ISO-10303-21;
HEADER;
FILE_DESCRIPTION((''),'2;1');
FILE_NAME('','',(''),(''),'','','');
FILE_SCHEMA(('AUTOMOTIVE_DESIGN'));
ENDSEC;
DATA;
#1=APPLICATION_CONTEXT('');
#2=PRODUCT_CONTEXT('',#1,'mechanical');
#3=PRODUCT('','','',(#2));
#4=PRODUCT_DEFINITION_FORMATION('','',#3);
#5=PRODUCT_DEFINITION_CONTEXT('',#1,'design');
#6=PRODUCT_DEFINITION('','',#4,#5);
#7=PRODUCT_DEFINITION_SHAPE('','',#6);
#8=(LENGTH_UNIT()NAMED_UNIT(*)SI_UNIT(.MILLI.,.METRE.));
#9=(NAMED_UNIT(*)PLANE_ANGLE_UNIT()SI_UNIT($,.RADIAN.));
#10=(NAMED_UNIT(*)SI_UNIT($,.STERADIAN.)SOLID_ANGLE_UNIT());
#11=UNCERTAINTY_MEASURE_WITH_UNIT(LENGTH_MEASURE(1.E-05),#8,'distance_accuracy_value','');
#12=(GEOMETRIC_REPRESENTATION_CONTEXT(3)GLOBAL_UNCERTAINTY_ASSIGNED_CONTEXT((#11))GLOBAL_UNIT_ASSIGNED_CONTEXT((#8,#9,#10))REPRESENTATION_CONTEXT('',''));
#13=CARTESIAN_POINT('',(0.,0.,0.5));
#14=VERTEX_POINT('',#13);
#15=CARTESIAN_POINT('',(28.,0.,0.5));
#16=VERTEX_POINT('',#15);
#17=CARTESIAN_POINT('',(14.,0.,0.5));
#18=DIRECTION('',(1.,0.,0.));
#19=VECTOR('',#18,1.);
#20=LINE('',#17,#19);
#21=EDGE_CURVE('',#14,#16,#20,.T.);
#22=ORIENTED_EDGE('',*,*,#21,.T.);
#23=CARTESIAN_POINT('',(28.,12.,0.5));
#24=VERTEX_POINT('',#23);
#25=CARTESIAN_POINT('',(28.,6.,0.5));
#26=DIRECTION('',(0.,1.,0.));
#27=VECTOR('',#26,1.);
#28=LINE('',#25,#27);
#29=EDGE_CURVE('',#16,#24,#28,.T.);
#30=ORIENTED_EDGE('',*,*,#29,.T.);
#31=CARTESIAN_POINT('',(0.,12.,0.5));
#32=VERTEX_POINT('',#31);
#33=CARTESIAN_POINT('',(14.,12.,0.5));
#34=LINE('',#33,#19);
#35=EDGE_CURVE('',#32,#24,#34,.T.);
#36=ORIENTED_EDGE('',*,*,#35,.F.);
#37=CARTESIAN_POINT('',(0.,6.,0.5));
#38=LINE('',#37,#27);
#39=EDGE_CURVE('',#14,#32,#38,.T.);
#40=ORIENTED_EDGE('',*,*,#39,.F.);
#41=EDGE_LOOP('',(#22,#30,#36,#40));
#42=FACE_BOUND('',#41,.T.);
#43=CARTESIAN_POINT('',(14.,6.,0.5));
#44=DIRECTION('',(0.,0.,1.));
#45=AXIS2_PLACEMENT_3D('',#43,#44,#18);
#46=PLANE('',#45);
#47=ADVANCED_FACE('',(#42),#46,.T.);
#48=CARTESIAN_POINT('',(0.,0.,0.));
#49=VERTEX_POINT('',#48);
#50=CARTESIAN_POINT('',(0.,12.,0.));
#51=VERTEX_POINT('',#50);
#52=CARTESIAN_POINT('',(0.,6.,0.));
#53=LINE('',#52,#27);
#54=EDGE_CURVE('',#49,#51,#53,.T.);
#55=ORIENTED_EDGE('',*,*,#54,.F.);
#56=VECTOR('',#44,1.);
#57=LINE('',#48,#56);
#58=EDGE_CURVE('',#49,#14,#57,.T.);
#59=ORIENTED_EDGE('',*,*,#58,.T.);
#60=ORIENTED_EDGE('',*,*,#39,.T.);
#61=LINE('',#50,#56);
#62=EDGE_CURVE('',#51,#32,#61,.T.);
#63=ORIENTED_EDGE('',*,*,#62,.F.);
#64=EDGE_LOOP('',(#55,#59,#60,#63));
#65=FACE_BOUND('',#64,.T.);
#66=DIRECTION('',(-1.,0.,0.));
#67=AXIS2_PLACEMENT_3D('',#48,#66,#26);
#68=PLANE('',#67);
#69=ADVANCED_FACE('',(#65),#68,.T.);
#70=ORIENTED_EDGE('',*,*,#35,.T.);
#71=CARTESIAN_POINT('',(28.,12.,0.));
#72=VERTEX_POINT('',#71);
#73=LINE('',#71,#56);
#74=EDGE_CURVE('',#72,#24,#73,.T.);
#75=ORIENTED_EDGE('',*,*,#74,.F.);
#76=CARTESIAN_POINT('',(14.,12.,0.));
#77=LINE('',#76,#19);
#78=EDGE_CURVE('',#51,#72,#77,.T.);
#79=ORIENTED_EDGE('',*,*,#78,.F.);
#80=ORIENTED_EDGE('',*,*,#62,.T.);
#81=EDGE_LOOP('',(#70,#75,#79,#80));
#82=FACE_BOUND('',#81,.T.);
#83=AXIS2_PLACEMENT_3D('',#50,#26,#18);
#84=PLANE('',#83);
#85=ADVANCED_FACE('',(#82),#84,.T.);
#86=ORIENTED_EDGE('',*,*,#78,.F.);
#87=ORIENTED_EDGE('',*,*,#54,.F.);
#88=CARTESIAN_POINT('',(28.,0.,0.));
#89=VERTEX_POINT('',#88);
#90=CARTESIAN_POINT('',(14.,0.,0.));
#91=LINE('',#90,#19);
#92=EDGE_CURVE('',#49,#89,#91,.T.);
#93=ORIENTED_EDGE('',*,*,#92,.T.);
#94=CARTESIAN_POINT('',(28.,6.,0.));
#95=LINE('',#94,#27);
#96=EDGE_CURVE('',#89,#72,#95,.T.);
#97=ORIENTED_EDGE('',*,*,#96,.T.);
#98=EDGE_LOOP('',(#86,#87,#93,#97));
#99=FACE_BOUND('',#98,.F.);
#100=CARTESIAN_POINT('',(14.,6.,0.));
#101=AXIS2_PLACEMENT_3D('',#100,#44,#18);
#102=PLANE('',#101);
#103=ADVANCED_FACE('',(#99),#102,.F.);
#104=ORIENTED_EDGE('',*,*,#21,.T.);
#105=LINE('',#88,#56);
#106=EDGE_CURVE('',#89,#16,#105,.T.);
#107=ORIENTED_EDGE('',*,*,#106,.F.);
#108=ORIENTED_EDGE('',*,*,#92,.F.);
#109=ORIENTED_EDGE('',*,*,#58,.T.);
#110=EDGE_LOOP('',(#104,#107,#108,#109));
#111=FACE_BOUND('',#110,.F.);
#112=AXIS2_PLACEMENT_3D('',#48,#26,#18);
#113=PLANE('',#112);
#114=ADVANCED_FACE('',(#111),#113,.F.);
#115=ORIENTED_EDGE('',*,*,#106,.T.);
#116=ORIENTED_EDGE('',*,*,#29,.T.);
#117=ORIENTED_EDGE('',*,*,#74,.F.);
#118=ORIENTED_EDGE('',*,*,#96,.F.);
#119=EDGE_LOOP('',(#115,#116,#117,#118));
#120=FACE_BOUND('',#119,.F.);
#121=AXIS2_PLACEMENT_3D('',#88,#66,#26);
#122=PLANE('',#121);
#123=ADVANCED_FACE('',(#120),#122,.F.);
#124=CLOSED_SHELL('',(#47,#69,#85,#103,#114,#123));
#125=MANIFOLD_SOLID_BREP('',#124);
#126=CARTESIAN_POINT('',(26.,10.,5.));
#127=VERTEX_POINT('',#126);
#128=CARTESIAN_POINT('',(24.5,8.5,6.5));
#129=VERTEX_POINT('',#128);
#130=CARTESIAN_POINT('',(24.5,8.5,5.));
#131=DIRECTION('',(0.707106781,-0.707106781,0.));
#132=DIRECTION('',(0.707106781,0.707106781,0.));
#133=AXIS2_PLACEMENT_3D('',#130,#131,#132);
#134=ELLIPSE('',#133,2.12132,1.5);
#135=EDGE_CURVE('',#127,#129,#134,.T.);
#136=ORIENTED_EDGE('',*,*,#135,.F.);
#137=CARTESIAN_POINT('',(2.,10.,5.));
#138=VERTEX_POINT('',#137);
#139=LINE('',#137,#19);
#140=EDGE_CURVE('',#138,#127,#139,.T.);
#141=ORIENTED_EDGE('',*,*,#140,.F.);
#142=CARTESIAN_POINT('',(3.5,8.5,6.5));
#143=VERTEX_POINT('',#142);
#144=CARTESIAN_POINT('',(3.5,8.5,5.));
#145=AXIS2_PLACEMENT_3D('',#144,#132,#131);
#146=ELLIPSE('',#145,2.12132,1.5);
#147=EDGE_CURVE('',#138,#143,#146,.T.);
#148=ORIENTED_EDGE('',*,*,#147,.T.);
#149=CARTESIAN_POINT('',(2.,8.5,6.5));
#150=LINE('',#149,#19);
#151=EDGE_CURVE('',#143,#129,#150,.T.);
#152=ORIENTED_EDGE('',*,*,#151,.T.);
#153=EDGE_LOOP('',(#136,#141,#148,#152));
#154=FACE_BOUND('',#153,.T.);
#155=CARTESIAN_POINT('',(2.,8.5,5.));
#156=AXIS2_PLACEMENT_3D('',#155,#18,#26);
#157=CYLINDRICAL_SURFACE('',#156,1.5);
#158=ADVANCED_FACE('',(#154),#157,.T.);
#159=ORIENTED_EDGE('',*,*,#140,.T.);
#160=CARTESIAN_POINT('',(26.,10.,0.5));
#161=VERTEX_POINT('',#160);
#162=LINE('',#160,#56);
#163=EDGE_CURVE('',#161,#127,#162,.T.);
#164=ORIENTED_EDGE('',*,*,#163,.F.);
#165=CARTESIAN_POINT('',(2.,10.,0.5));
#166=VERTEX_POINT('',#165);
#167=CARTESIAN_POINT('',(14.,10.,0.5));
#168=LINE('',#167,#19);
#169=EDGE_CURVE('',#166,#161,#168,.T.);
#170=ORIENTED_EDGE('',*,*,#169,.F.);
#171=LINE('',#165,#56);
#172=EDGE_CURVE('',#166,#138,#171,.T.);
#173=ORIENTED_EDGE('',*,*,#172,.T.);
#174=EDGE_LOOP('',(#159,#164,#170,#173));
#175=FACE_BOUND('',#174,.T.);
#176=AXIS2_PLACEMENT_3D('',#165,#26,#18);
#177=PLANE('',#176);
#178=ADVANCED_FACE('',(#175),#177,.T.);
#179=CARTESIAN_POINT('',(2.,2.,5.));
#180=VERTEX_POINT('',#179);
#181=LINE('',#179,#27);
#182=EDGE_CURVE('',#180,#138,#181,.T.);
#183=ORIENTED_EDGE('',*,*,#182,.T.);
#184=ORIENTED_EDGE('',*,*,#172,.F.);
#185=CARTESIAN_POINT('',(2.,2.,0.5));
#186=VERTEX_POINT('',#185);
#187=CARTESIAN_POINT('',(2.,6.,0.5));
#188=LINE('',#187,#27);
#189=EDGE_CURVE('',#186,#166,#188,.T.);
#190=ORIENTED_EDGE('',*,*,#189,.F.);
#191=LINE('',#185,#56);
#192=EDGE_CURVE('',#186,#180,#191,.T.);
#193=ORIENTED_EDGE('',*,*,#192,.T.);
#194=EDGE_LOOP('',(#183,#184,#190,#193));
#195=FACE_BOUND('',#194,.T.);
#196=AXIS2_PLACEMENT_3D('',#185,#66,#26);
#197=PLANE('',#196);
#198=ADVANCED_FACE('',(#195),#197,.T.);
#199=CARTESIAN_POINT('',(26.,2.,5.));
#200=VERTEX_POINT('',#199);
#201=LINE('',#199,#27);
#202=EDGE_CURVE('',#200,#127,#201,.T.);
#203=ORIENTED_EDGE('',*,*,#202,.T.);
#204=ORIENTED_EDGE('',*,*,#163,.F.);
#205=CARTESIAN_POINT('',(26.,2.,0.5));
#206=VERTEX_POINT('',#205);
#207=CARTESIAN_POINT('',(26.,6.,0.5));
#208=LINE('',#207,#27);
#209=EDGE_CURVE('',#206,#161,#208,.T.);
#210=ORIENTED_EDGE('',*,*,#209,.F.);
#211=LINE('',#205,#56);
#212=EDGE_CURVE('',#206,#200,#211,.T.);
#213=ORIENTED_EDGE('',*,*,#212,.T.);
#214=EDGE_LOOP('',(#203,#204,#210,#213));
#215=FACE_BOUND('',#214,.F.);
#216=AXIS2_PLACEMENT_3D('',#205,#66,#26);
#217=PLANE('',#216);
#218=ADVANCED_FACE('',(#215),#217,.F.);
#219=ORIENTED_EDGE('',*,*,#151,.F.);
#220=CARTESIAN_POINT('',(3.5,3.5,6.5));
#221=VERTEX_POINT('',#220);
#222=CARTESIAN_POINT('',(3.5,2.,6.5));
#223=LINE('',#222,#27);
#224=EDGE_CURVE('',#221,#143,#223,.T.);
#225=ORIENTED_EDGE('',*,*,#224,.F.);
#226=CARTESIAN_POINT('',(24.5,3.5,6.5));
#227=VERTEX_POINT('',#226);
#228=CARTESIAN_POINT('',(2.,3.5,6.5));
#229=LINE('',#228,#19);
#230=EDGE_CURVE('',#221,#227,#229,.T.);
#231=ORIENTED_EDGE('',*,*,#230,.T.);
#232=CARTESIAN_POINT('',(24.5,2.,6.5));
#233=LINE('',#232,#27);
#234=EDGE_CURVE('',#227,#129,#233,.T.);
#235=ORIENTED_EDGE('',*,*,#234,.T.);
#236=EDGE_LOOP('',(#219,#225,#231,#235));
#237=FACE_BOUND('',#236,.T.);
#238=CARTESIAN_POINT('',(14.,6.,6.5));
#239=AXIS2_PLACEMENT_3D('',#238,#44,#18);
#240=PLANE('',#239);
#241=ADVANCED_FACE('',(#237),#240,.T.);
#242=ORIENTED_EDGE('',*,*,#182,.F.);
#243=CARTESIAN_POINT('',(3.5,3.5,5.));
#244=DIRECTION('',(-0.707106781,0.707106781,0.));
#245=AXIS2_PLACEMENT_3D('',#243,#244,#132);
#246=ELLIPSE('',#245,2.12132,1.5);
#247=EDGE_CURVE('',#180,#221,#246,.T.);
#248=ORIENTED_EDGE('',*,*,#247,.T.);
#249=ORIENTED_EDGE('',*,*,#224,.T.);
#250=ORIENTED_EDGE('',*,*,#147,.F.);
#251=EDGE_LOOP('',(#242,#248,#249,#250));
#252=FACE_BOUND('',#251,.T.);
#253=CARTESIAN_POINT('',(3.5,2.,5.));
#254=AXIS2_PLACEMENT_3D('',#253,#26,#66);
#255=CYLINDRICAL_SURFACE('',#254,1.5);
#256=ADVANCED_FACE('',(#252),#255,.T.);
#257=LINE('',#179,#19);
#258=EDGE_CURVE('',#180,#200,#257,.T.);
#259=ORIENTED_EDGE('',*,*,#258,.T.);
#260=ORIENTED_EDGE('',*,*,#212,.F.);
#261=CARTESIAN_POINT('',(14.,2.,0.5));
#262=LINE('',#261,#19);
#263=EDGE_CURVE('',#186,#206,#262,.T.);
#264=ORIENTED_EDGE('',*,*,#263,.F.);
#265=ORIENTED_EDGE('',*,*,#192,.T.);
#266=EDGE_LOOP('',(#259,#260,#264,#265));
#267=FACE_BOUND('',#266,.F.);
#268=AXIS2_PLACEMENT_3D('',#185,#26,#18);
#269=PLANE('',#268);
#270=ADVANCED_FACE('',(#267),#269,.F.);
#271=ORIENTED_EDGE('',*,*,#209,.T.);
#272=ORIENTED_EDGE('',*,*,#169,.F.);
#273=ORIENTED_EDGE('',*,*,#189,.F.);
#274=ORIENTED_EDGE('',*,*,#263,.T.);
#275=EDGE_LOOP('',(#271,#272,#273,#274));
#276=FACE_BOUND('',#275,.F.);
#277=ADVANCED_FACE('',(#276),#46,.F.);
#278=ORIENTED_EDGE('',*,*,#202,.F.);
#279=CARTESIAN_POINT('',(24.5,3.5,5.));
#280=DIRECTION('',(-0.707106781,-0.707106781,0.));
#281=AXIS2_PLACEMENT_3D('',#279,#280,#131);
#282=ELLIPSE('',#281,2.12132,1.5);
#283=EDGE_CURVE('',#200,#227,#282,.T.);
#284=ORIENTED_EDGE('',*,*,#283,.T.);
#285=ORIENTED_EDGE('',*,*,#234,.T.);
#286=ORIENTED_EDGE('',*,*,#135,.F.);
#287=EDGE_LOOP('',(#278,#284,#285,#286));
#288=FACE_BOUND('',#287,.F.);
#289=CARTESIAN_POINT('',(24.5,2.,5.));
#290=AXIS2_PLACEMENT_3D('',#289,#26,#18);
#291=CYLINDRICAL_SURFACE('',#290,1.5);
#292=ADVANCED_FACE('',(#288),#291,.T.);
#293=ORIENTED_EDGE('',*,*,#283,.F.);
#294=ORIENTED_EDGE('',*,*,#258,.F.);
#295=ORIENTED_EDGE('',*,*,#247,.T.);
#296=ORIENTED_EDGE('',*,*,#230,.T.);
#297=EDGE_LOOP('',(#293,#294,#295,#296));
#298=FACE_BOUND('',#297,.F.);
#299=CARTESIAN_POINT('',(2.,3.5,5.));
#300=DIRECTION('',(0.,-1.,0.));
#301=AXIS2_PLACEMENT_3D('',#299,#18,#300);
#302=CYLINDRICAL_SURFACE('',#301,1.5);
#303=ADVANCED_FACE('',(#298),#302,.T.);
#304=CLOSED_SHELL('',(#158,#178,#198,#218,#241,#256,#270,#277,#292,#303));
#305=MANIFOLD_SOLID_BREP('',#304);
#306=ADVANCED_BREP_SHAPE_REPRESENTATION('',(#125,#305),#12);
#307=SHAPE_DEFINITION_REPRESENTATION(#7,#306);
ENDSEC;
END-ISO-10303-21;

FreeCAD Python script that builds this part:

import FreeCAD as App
import Part
import Sketcher


def edges_at(feature, points):
    """Names of the edges that pass closest to the given points."""
    edges = feature.Shape.Edges
    near = lambda p: min(range(len(edges)), key=lambda i: edges[i].distToShape(Part.Vertex(*p))[0])
    return sorted({f"Edge{near(p) + 1}" for p in points})

doc = App.newDocument("Part")
body = doc.addObject("PartDesign::Body", "Body")

sketch1 = doc.addObject("Sketcher::SketchObject", "Sketch")
body.addObject(sketch1)
sketch1.AttachmentSupport = (doc.XY_Plane, [""])
sketch1.MapMode = "FlatFace"
sketch1.addGeometry([
    Part.LineSegment(App.Vector(0, 12, 0), App.Vector(0, 0, 0)),
    Part.LineSegment(App.Vector(0, 0, 0), App.Vector(28, 0, 0)),
    Part.LineSegment(App.Vector(28, 0, 0), App.Vector(28, 12, 0)),
    Part.LineSegment(App.Vector(28, 12, 0), App.Vector(0, 12, 0)),
], False)
sketch1.addConstraint([
    Sketcher.Constraint("Coincident", 0, 2, 1, 1),
    Sketcher.Constraint("Coincident", 1, 2, 2, 1),
    Sketcher.Constraint("Coincident", 2, 2, 3, 1),
    Sketcher.Constraint("Coincident", 3, 2, 0, 1),
    Sketcher.Constraint("Vertical", 0),
    Sketcher.Constraint("Horizontal", 1),
    Sketcher.Constraint("Vertical", 2),
    Sketcher.Constraint("Horizontal", 3),
    Sketcher.Constraint("Coincident", 0, 2, -1, 1),
    Sketcher.Constraint("DistanceX", 1, 1, 1, 2, 28.0),
    Sketcher.Constraint("DistanceY", 0, 2, 0, 1, 12.0),
])
pad1 = doc.addObject("PartDesign::Pad", "Pad")
body.addObject(pad1)
pad1.Profile = sketch1
pad1.Length = 0.5
body2 = doc.addObject("PartDesign::Body", "Body001")

sketch2 = doc.addObject("Sketcher::SketchObject", "Sketch001")
body2.addObject(sketch2)
sketch2.AttachmentSupport = (doc.getObject("XY_Plane001"), [""])
sketch2.MapMode = "FlatFace"
sketch2.AttachmentOffset = App.Placement(App.Vector(0, 0, 0.5), App.Rotation())
sketch2.addGeometry([
    Part.LineSegment(App.Vector(2, 10, 0), App.Vector(2, 2, 0)),
    Part.LineSegment(App.Vector(2, 2, 0), App.Vector(26, 2, 0)),
    Part.LineSegment(App.Vector(26, 2, 0), App.Vector(26, 10, 0)),
    Part.LineSegment(App.Vector(26, 10, 0), App.Vector(2, 10, 0)),
], False)
sketch2.addConstraint([
    Sketcher.Constraint("Coincident", 0, 2, 1, 1),
    Sketcher.Constraint("Coincident", 1, 2, 2, 1),
    Sketcher.Constraint("Coincident", 2, 2, 3, 1),
    Sketcher.Constraint("Coincident", 3, 2, 0, 1),
    Sketcher.Constraint("Vertical", 0),
    Sketcher.Constraint("Horizontal", 1),
    Sketcher.Constraint("Vertical", 2),
    Sketcher.Constraint("Horizontal", 3),
    Sketcher.Constraint("DistanceX", 1, 1, 1, 2, 24.0),
    Sketcher.Constraint("DistanceY", 0, 2, 0, 1, 8.0),
    Sketcher.Constraint("DistanceX", -1, 1, 0, 2, 2.0),
    Sketcher.Constraint("DistanceY", -1, 1, 0, 2, 2.0),
])
pad2 = doc.addObject("PartDesign::Pad", "Pad001")
body2.addObject(pad2)
pad2.Profile = sketch2
pad2.Length = 6
doc.recompute()

fillet = doc.addObject("PartDesign::Fillet", "Fillet")
body2.addObject(fillet)
fillet.Base = (pad2, edges_at(pad2, [
    (14, 2, 6.5),
    (26, 6, 6.5),
    (14, 10, 6.5),
    (2, 6, 6.5),
]))
fillet.Radius = 1.5

doc.recompute()
